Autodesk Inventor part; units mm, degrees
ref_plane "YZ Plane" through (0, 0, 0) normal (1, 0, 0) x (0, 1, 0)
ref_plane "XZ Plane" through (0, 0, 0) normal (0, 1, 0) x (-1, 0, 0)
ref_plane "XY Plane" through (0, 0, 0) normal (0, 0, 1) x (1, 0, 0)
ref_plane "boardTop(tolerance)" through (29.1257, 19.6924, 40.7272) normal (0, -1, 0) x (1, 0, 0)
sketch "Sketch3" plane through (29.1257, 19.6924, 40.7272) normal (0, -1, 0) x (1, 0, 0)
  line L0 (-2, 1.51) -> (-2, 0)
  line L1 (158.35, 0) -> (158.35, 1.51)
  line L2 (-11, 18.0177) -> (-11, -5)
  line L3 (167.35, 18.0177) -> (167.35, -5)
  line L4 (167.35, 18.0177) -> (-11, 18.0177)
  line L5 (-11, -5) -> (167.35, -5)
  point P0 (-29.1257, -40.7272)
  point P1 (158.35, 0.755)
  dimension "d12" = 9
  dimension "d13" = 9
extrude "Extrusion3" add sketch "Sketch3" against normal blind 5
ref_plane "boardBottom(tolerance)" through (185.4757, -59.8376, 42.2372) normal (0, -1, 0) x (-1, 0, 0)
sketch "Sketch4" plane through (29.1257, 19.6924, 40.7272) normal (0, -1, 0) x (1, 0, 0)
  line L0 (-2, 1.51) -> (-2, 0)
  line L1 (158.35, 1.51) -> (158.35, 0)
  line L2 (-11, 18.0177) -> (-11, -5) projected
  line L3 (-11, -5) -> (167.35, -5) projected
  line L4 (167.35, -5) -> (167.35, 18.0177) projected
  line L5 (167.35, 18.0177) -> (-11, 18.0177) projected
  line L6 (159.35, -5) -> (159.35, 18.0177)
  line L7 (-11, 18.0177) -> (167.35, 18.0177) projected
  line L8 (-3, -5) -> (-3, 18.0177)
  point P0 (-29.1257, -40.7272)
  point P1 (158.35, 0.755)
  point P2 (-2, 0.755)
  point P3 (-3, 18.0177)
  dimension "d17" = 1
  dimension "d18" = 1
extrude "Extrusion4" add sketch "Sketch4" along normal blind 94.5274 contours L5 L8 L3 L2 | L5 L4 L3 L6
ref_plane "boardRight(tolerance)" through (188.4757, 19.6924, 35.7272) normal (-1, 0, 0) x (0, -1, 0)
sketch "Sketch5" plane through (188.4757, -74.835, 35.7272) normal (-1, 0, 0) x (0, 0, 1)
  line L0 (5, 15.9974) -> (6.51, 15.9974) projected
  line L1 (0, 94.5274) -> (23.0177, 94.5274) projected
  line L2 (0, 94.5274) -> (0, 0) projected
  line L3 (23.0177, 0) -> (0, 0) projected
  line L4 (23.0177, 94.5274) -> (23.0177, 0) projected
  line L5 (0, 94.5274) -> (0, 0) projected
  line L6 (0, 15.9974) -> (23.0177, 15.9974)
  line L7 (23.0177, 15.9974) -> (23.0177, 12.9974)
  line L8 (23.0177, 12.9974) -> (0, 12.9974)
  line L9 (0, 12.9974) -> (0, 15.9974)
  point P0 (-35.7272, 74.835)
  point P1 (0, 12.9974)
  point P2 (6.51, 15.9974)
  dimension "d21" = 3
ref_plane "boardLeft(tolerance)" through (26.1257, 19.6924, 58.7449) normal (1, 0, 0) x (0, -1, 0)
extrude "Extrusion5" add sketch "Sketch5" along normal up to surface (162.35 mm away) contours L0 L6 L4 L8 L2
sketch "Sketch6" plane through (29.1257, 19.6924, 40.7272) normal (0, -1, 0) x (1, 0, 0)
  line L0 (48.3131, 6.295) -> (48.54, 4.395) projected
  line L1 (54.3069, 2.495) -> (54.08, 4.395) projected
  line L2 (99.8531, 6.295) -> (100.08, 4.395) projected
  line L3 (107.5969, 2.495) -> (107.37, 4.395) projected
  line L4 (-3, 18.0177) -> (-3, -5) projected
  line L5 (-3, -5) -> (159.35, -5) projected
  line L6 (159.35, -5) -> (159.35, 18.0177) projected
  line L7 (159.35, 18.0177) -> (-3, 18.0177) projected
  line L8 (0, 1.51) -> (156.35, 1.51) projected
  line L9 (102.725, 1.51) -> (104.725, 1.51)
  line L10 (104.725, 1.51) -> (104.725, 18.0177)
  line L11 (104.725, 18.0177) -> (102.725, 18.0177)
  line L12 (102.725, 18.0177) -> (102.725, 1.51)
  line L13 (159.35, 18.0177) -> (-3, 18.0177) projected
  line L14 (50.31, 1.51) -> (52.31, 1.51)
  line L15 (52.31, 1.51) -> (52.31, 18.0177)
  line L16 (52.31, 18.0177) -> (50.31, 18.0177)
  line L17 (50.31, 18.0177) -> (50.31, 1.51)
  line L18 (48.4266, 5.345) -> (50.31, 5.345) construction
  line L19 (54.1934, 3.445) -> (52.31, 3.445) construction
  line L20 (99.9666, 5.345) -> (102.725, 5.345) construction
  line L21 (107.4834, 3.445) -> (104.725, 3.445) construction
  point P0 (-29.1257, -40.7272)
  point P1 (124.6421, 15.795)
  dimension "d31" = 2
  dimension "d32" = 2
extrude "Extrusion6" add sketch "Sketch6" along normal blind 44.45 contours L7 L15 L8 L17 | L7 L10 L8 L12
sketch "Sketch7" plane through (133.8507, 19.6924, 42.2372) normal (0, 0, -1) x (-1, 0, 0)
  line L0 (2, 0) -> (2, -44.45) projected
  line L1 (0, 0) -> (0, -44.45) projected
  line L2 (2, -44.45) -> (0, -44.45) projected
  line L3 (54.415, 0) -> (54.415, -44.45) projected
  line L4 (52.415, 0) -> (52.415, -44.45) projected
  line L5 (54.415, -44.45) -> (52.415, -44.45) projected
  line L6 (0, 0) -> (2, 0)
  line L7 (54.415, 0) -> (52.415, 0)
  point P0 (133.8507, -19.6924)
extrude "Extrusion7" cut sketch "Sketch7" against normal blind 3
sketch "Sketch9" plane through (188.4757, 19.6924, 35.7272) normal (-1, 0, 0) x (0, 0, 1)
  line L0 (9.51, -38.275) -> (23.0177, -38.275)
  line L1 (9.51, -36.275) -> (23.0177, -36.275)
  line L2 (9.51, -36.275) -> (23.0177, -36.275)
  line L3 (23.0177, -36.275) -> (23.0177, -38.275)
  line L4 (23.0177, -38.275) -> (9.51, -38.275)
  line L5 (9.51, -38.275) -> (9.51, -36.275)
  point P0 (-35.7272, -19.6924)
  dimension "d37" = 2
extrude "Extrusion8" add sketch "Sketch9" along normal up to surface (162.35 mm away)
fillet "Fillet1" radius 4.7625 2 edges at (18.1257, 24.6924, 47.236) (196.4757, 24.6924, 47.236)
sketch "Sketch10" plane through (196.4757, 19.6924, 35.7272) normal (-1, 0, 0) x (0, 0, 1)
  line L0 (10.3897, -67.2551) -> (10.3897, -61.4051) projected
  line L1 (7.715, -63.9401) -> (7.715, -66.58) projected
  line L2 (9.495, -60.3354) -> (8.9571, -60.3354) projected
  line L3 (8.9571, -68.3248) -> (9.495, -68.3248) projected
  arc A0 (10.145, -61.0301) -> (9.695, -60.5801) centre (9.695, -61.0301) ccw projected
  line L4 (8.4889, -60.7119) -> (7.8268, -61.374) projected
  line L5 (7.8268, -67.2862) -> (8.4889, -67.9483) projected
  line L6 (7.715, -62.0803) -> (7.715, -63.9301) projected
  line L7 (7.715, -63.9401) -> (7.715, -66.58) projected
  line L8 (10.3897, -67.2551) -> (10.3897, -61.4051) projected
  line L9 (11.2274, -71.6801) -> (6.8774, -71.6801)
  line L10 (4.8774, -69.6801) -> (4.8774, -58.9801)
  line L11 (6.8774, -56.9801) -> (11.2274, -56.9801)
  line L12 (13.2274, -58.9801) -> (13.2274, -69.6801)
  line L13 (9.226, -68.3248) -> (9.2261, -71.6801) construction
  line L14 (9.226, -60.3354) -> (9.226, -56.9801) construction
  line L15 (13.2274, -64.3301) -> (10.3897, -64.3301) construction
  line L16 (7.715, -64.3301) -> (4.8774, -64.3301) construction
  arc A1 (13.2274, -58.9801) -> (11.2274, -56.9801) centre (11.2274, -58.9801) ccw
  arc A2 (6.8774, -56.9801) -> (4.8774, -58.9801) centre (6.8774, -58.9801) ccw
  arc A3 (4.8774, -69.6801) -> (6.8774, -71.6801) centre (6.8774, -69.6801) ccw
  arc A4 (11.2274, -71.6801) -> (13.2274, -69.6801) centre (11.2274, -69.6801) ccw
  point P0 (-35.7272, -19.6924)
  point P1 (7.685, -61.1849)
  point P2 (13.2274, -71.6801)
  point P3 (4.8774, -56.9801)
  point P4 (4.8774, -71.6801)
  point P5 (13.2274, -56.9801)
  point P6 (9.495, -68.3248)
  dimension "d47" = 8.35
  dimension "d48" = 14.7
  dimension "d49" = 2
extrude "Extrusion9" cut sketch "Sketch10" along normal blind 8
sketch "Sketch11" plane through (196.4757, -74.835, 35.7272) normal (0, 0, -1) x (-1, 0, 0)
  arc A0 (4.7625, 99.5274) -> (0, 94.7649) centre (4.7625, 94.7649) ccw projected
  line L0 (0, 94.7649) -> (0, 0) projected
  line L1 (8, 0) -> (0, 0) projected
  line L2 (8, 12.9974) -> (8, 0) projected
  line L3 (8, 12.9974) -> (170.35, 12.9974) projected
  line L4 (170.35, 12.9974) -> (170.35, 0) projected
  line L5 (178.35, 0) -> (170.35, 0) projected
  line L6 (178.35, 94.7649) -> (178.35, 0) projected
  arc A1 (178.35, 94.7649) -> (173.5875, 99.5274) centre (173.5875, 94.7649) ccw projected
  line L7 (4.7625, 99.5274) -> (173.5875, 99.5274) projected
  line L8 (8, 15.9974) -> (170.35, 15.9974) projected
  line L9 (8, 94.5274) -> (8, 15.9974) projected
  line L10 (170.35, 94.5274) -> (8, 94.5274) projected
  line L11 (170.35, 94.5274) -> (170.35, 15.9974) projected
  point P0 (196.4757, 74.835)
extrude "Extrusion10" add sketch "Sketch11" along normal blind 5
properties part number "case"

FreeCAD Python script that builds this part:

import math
import FreeCAD as App
import Part
import Sketcher

V = App.Vector
Q = App.Units.Quantity


def edges_at(feature, points):
    """Names of the edges that pass closest to the given points."""
    edges = feature.Shape.Edges
    near = lambda p: min(range(len(edges)), key=lambda i: edges[i].distToShape(Part.Vertex(*p))[0])
    return sorted({f"Edge{near(p) + 1}" for p in points})

doc = App.newDocument("Part")
body = doc.addObject("PartDesign::Body", "Body")

sketch1 = body.newObject("Sketcher::SketchObject", "Sketch")
sketch1.AttachmentSupport = (doc.getObject("XZ_Plane"), [""])
sketch1.MapMode = "FlatFace"
sketch1.AttachmentOffset = App.Placement(V(0, 0, -19.6924), App.Rotation())
sketch1.addGeometry([
    Part.LineSegment(V(196, 59, 0), V(18, 59, 0)),
    Part.LineSegment(V(18, 59, 0), V(18, 36, 0)),
    Part.LineSegment(V(18, 36, 0), V(196, 36, 0)),
    Part.LineSegment(V(196, 36, 0), V(196, 59, 0)),
], False)
sketch1.addConstraint([
    Sketcher.Constraint("Coincident", 0, 2, 1, 1),
    Sketcher.Constraint("Coincident", 1, 2, 2, 1),
    Sketcher.Constraint("Coincident", 2, 2, 3, 1),
    Sketcher.Constraint("Coincident", 3, 2, 0, 1),
    Sketcher.Constraint("Horizontal", 0),
    Sketcher.Constraint("Vertical", 1),
    Sketcher.Constraint("Horizontal", 2),
    Sketcher.Constraint("Vertical", 3),
    Sketcher.Constraint("DistanceX", 0, 2, 0, 1, Q("178.35 mm")),
    Sketcher.Constraint("DistanceY", 1, 2, 1, 1, Q("23.0177 mm")),
    Sketcher.Constraint("DistanceY", -1, 1, 0, 2, Q("58.745 mm")),
    Sketcher.Constraint("DistanceX", -1, 1, 0, 2, Q("18.1257 mm")),
])
pad1 = body.newObject("PartDesign::Pad", "Pad")
pad1.Profile = sketch1
pad1.Length = 5
pad1.Reversed = True

sketch2 = body.newObject("Sketcher::SketchObject", "Sketch001")
sketch2.AttachmentSupport = (doc.getObject("XZ_Plane"), [""])
sketch2.MapMode = "FlatFace"
sketch2.AttachmentOffset = App.Placement(V(0, 0, -19.6924), App.Rotation())
sketch2.addGeometry([
    Part.LineSegment(V(26, 59, 0), V(18, 59, 0)),
    Part.LineSegment(V(18, 59, 0), V(18, 36, 0)),
    Part.LineSegment(V(18, 36, 0), V(26, 36, 0)),
    Part.LineSegment(V(26, 36, 0), V(26, 59, 0)),
    Part.LineSegment(V(196, 59, 0), V(188, 59, 0)),
    Part.LineSegment(V(188, 59, 0), V(188, 36, 0)),
    Part.LineSegment(V(188, 36, 0), V(196, 36, 0)),
    Part.LineSegment(V(196, 36, 0), V(196, 59, 0)),
], False)
sketch2.addConstraint([
    Sketcher.Constraint("Coincident", 0, 2, 1, 1),
    Sketcher.Constraint("Coincident", 1, 2, 2, 1),
    Sketcher.Constraint("Coincident", 2, 2, 3, 1),
    Sketcher.Constraint("Coincident", 3, 2, 0, 1),
    Sketcher.Constraint("Coincident", 4, 2, 5, 1),
    Sketcher.Constraint("Coincident", 5, 2, 6, 1),
    Sketcher.Constraint("Coincident", 6, 2, 7, 1),
    Sketcher.Constraint("Coincident", 7, 2, 4, 1),
    Sketcher.Constraint("Horizontal", 0),
    Sketcher.Constraint("Vertical", 1),
    Sketcher.Constraint("Horizontal", 2),
    Sketcher.Constraint("Vertical", 3),
    Sketcher.Constraint("Horizontal", 4),
    Sketcher.Constraint("Vertical", 5),
    Sketcher.Constraint("Horizontal", 6),
    Sketcher.Constraint("Vertical", 7),
    Sketcher.Constraint("Horizontal", 3, 2, 4, 2),
    Sketcher.Constraint("Horizontal", 2, 2, 5, 2),
    Sketcher.Constraint("Equal", 2, 4),
    Sketcher.Constraint("DistanceX", 0, 2, 0, 1, Q("8 mm")),
    Sketcher.Constraint("DistanceX", 3, 2, 4, 2, Q("162.35 mm")),
    Sketcher.Constraint("DistanceY", 1, 2, 1, 1, Q("23.0177 mm")),
    Sketcher.Constraint("DistanceY", -1, 1, 0, 2, Q("58.745 mm")),
    Sketcher.Constraint("DistanceX", -1, 1, 0, 2, Q("18.1257 mm")),
])
pad2 = body.newObject("PartDesign::Pad", "Pad001")
pad2.Profile = sketch2
pad2.Length = 94.5274

sketch3 = body.newObject("Sketcher::SketchObject", "Sketch002")
sketch3.AttachmentSupport = (doc.getObject("YZ_Plane"), [""])
sketch3.MapMode = "FlatFace"
sketch3.AttachmentOffset = App.Placement(V(0, 0, 188.4757), App.Rotation())
sketch3.addGeometry([
    Part.LineSegment(V(-58.8, 58.7, 0), V(-58.8, 35.7, 0)),
    Part.LineSegment(V(-58.8, 35.7, 0), V(-61.8, 35.7, 0)),
    Part.LineSegment(V(-61.8, 35.7, 0), V(-61.8, 58.7, 0)),
    Part.LineSegment(V(-61.8, 58.7, 0), V(-58.8, 58.7, 0)),
], False)
sketch3.addConstraint([
    Sketcher.Constraint("Coincident", 0, 2, 1, 1),
    Sketcher.Constraint("Coincident", 1, 2, 2, 1),
    Sketcher.Constraint("Coincident", 2, 2, 3, 1),
    Sketcher.Constraint("Coincident", 3, 2, 0, 1),
    Sketcher.Constraint("Vertical", 0),
    Sketcher.Constraint("Horizontal", 1),
    Sketcher.Constraint("Vertical", 2),
    Sketcher.Constraint("Horizontal", 3),
    Sketcher.Constraint("DistanceX", 1, 2, 1, 1, Q("3 mm")),
    Sketcher.Constraint("DistanceY", 0, 2, 0, 1, Q("23.0177 mm")),
    Sketcher.Constraint("DistanceY", -1, 1, 2, 2, Q("58.745 mm")),
    Sketcher.Constraint("DistanceX", 0, 2, -1, 1, Q("58.8376 mm")),
])
pad3 = body.newObject("PartDesign::Pad", "Pad002")
pad3.Profile = sketch3
pad3.Length = 162.35
pad3.Reversed = True

sketch4 = body.newObject("Sketcher::SketchObject", "Sketch003")
sketch4.AttachmentSupport = (doc.getObject("XZ_Plane"), [""])
sketch4.MapMode = "FlatFace"
sketch4.AttachmentOffset = App.Placement(V(0, 0, -19.6924), App.Rotation())
sketch4.addGeometry([
    Part.LineSegment(V(81.4, 58.7, 0), V(79.4, 58.7, 0)),
    Part.LineSegment(V(79.4, 58.7, 0), V(79.4, 42.2, 0)),
    Part.LineSegment(V(79.4, 42.2, 0), V(81.4, 42.2, 0)),
    Part.LineSegment(V(81.4, 42.2, 0), V(81.4, 58.7, 0)),
    Part.LineSegment(V(133.9, 58.7, 0), V(131.9, 58.7, 0)),
    Part.LineSegment(V(131.9, 58.7, 0), V(131.9, 42.2, 0)),
    Part.LineSegment(V(131.9, 42.2, 0), V(133.9, 42.2, 0)),
    Part.LineSegment(V(133.9, 42.2, 0), V(133.9, 58.7, 0)),
], False)
sketch4.addConstraint([
    Sketcher.Constraint("Coincident", 0, 2, 1, 1),
    Sketcher.Constraint("Coincident", 1, 2, 2, 1),
    Sketcher.Constraint("Coincident", 2, 2, 3, 1),
    Sketcher.Constraint("Coincident", 3, 2, 0, 1),
    Sketcher.Constraint("Coincident", 4, 2, 5, 1),
    Sketcher.Constraint("Coincident", 5, 2, 6, 1),
    Sketcher.Constraint("Coincident", 6, 2, 7, 1),
    Sketcher.Constraint("Coincident", 7, 2, 4, 1),
    Sketcher.Constraint("Horizontal", 0),
    Sketcher.Constraint("Vertical", 1),
    Sketcher.Constraint("Horizontal", 2),
    Sketcher.Constraint("Vertical", 3),
    Sketcher.Constraint("Horizontal", 4),
    Sketcher.Constraint("Vertical", 5),
    Sketcher.Constraint("Horizontal", 6),
    Sketcher.Constraint("Vertical", 7),
    Sketcher.Constraint("Horizontal", 3, 2, 4, 2),
    Sketcher.Constraint("Horizontal", 2, 2, 5, 2),
    Sketcher.Constraint("Equal", 2, 4),
    Sketcher.Constraint("DistanceX", 0, 2, 0, 1, Q("2 mm")),
    Sketcher.Constraint("DistanceY", 1, 2, 1, 1, Q("16.5077 mm")),
    Sketcher.Constraint("DistanceY", -1, 1, 0, 2, Q("58.745 mm")),
    Sketcher.Constraint("DistanceX", 3, 2, 4, 2, Q("50.415 mm")),
    Sketcher.Constraint("DistanceX", -1, 1, 0, 2, Q("79.4357 mm")),
])
pad4 = body.newObject("PartDesign::Pad", "Pad003")
pad4.Profile = sketch4
pad4.Length = 44.45

sketch5 = body.newObject("Sketcher::SketchObject", "Sketch004")
sketch5.AttachmentSupport = (doc.getObject("XY_Plane"), [""])
sketch5.MapMode = "FlatFace"
sketch5.AttachmentOffset = App.Placement(V(0, 0, 42.2372), App.Rotation())
sketch5.addGeometry([
    Part.LineSegment(V(131.9, -24.8, 0), V(131.9, 19.7, 0)),
    Part.LineSegment(V(131.9, 19.7, 0), V(133.9, 19.7, 0)),
    Part.LineSegment(V(133.9, 19.7, 0), V(133.9, -24.8, 0)),
    Part.LineSegment(V(133.9, -24.8, 0), V(131.9, -24.8, 0)),
    Part.LineSegment(V(79.4, -24.8, 0), V(79.4, 19.7, 0)),
    Part.LineSegment(V(79.4, 19.7, 0), V(81.4, 19.7, 0)),
    Part.LineSegment(V(81.4, 19.7, 0), V(81.4, -24.8, 0)),
    Part.LineSegment(V(81.4, -24.8, 0), V(79.4, -24.8, 0)),
], False)
sketch5.addConstraint([
    Sketcher.Constraint("Coincident", 0, 2, 1, 1),
    Sketcher.Constraint("Coincident", 1, 2, 2, 1),
    Sketcher.Constraint("Coincident", 2, 2, 3, 1),
    Sketcher.Constraint("Coincident", 3, 2, 0, 1),
    Sketcher.Constraint("Coincident", 4, 2, 5, 1),
    Sketcher.Constraint("Coincident", 5, 2, 6, 1),
    Sketcher.Constraint("Coincident", 6, 2, 7, 1),
    Sketcher.Constraint("Coincident", 7, 2, 4, 1),
    Sketcher.Constraint("Vertical", 0),
    Sketcher.Constraint("Horizontal", 1),
    Sketcher.Constraint("Vertical", 2),
    Sketcher.Constraint("Horizontal", 3),
    Sketcher.Constraint("Vertical", 4),
    Sketcher.Constraint("Horizontal", 5),
    Sketcher.Constraint("Vertical", 6),
    Sketcher.Constraint("Horizontal", 7),
    Sketcher.Constraint("Horizontal", 1, 2, 4, 2),
    Sketcher.Constraint("Horizontal", 3, 2, 6, 2),
    Sketcher.Constraint("Equal", 3, 5),
    Sketcher.Constraint("DistanceX", 1, 1, 1, 2, Q("2 mm")),
    Sketcher.Constraint("DistanceY", 0, 1, 0, 2, Q("44.45 mm")),
    Sketcher.Constraint("DistanceX", 4, 2, 0, 2, Q("52.415 mm")),
    Sketcher.Constraint("DistanceX", -1, 1, 0, 2, Q("131.8507 mm")),
    Sketcher.Constraint("DistanceY", -1, 1, 0, 2, Q("19.6924 mm")),
])
pocket1 = body.newObject("PartDesign::Pocket", "Pocket")
pocket1.Profile = sketch5
pocket1.Length = 3
pocket1.Reversed = True

sketch6 = body.newObject("Sketcher::SketchObject", "Sketch005")
sketch6.AttachmentSupport = (doc.getObject("YZ_Plane"), [""])
sketch6.MapMode = "FlatFace"
sketch6.AttachmentOffset = App.Placement(V(0, 0, 188.4757), App.Rotation())
sketch6.addGeometry([
    Part.LineSegment(V(-16.6, 45.2, 0), V(-18.6, 45.2, 0)),
    Part.LineSegment(V(-18.6, 45.2, 0), V(-18.6, 58.7, 0)),
    Part.LineSegment(V(-18.6, 58.7, 0), V(-16.6, 58.7, 0)),
    Part.LineSegment(V(-16.6, 58.7, 0), V(-16.6, 45.2, 0)),
], False)
sketch6.addConstraint([
    Sketcher.Constraint("Coincident", 0, 2, 1, 1),
    Sketcher.Constraint("Coincident", 1, 2, 2, 1),
    Sketcher.Constraint("Coincident", 2, 2, 3, 1),
    Sketcher.Constraint("Coincident", 3, 2, 0, 1),
    Sketcher.Constraint("Horizontal", 0),
    Sketcher.Constraint("Vertical", 1),
    Sketcher.Constraint("Horizontal", 2),
    Sketcher.Constraint("Vertical", 3),
    Sketcher.Constraint("DistanceX", 0, 2, 0, 1, Q("2 mm")),
    Sketcher.Constraint("DistanceY", 1, 1, 1, 2, Q("13.5077 mm")),
    Sketcher.Constraint("DistanceY", -1, 1, 1, 2, Q("58.745 mm")),
    Sketcher.Constraint("DistanceX", 0, 2, -1, 1, Q("18.5826 mm")),
])
pad5 = body.newObject("PartDesign::Pad", "Pad004")
pad5.Profile = sketch6
pad5.Length = 162.35
pad5.Reversed = True
doc.recompute()

fillet = body.newObject("PartDesign::Fillet", "Fillet")
fillet.Base = (pad5, edges_at(pad5, [(18.126, 24.692, 47.236), (196.476, 24.692, 47.236)]))
fillet.Radius = 4.7625

sketch7 = body.newObject("Sketcher::SketchObject", "Sketch006")
sketch7.AttachmentSupport = (doc.getObject("YZ_Plane"), [""])
sketch7.MapMode = "FlatFace"
sketch7.AttachmentOffset = App.Placement(V(0, 0, 196.4757), App.Rotation())
sketch7.addGeometry([
    Part.LineSegment(V(-52, 42.6, 0), V(-52, 47, 0)),
    Part.ArcOfCircle(Part.Circle(V(-50, 47, 0), V(0, 0, 1), 2), math.radians(90), math.radians(180)),
    Part.LineSegment(V(-50, 49, 0), V(-39.3, 49, 0)),
    Part.ArcOfCircle(Part.Circle(V(-39.3, 47, 0), V(0, 0, 1), 2), math.radians(0), math.radians(90)),
    Part.LineSegment(V(-37.3, 47, 0), V(-37.3, 42.6, 0)),
    Part.ArcOfCircle(Part.Circle(V(-39.3, 42.6, 0), V(0, 0, 1), 2), math.radians(-90), math.radians(0)),
    Part.LineSegment(V(-39.3, 40.6, 0), V(-50, 40.6, 0)),
    Part.ArcOfCircle(Part.Circle(V(-50, 42.6, 0), V(0, 0, 1), 2), math.radians(180), math.radians(270)),
], False)
sketch7.addConstraint([
    Sketcher.Constraint("Tangent", 0, 2, 1, 2),
    Sketcher.Constraint("Tangent", 1, 1, 2, 1),
    Sketcher.Constraint("Tangent", 2, 2, 3, 2),
    Sketcher.Constraint("Tangent", 3, 1, 4, 1),
    Sketcher.Constraint("Tangent", 4, 2, 5, 2),
    Sketcher.Constraint("Tangent", 5, 1, 6, 1),
    Sketcher.Constraint("Tangent", 6, 2, 7, 2),
    Sketcher.Constraint("Tangent", 7, 1, 0, 1),
    Sketcher.Constraint("Vertical", 0),
    Sketcher.Constraint("Horizontal", 2),
    Sketcher.Constraint("Vertical", 4),
    Sketcher.Constraint("Horizontal", 6),
    Sketcher.Constraint("Equal", 1, 3),
    Sketcher.Constraint("Equal", 3, 5),
    Sketcher.Constraint("Equal", 5, 7),
    Sketcher.Constraint("Radius", 1, Q("2 mm")),
    Sketcher.Constraint("DistanceY", 5, 1, 2, 2, Q("8.35 mm")),
    Sketcher.Constraint("DistanceX", 2, 1, 2, 2, Q("10.7 mm")),
    Sketcher.Constraint("DistanceX", 1, 3, -1, 1, Q("49.9877 mm")),
    Sketcher.Constraint("DistanceY", -1, 1, 1, 3, Q("46.9546 mm")),
])
pocket2 = body.newObject("PartDesign::Pocket", "Pocket001")
pocket2.Profile = sketch7
pocket2.Length = 8

sketch8 = body.newObject("Sketcher::SketchObject", "Sketch007")
sketch8.AttachmentSupport = (doc.getObject("XY_Plane"), [""])
sketch8.MapMode = "FlatFace"
sketch8.AttachmentOffset = App.Placement(V(0, 0, 35.7272), App.Rotation())
sketch8.addGeometry([
    Part.LineSegment(V(22.9, 24.7, 0), V(191.7, 24.7, 0)),
    Part.ArcOfCircle(Part.Circle(V(191.7, 19.9, 0), V(0, 0, 1), 4.8), math.radians(0), math.radians(90)),
    Part.LineSegment(V(196.5, 19.9, 0), V(196.5, -74.8, 0)),
    Part.LineSegment(V(196.5, -74.8, 0), V(188.5, -74.8, 0)),
    Part.LineSegment(V(188.5, -74.8, 0), V(188.5, -61.8, 0)),
    Part.LineSegment(V(188.5, -61.8, 0), V(26.1, -61.8, 0)),
    Part.LineSegment(V(26.1, -61.8, 0), V(26.1, -74.8, 0)),
    Part.LineSegment(V(26.1, -74.8, 0), V(18.1, -74.8, 0)),
    Part.LineSegment(V(18.1, -74.8, 0), V(18.1, 19.9, 0)),
    Part.ArcOfCircle(Part.Circle(V(22.9, 19.9, 0), V(0, 0, 1), 4.8), math.radians(90), math.radians(180)),
    Part.LineSegment(V(26.1, -58.8, 0), V(188.5, -58.8, 0)),
    Part.LineSegment(V(188.5, -58.8, 0), V(188.5, 19.7, 0)),
    Part.LineSegment(V(188.5, 19.7, 0), V(26.1, 19.7, 0)),
    Part.LineSegment(V(26.1, 19.7, 0), V(26.1, -58.8, 0)),
], False)
sketch8.addConstraint([
    Sketcher.Constraint("Tangent", 0, 2, 1, 2),
    Sketcher.Constraint("Tangent", 1, 1, 2, 1),
    Sketcher.Constraint("Coincident", 2, 2, 3, 1),
    Sketcher.Constraint("Coincident", 3, 2, 4, 1),
    Sketcher.Constraint("Coincident", 4, 2, 5, 1),
    Sketcher.Constraint("Coincident", 5, 2, 6, 1),
    Sketcher.Constraint("Coincident", 6, 2, 7, 1),
    Sketcher.Constraint("Coincident", 7, 2, 8, 1),
    Sketcher.Constraint("Tangent", 8, 2, 9, 2),
    Sketcher.Constraint("Tangent", 9, 1, 0, 1),
    Sketcher.Constraint("Coincident", 10, 2, 11, 1),
    Sketcher.Constraint("Coincident", 11, 2, 12, 1),
    Sketcher.Constraint("Coincident", 12, 2, 13, 1),
    Sketcher.Constraint("Coincident", 13, 2, 10, 1),
    Sketcher.Constraint("Horizontal", 0),
    Sketcher.Constraint("Vertical", 2),
    Sketcher.Constraint("Horizontal", 3),
    Sketcher.Constraint("Vertical", 4),
    Sketcher.Constraint("Horizontal", 5),
    Sketcher.Constraint("Vertical", 6),
    Sketcher.Constraint("Horizontal", 7),
    Sketcher.Constraint("Vertical", 8),
    Sketcher.Constraint("Horizontal", 10),
    Sketcher.Constraint("Vertical", 11),
    Sketcher.Constraint("Horizontal", 12),
    Sketcher.Constraint("Vertical", 13),
    Sketcher.Constraint("Equal", 1, 9),
    Sketcher.Constraint("Horizontal", 3, 2, 6, 2),
    Sketcher.Constraint("Vertical", 4, 2, 10, 2),
    Sketcher.Constraint("Vertical", 6, 2, 12, 2),
    Sketcher.Constraint("Equal", 3, 7),
    Sketcher.Constraint("DistanceX", 3, 2, 3, 1, Q("8 mm")),
    Sketcher.Constraint("DistanceY", 4, 2, 10, 2, Q("3 mm")),
    Sketcher.Constraint("DistanceY", 11, 2, 0, 2, Q("5 mm")),
    Sketcher.Constraint("DistanceX", 5, 2, 5, 1, Q("162.35 mm")),
    Sketcher.Constraint("DistanceY", 11, 1, 11, 2, Q("78.53 mm")),
    Sketcher.Constraint("Radius", 1, Q("4.7625 mm")),
    Sketcher.Constraint("DistanceY", 2, 2, 2, 1, Q("94.765 mm")),
    Sketcher.Constraint("DistanceY", -1, 1, 1, 3, Q("19.93 mm")),
    Sketcher.Constraint("DistanceX", -1, 1, 1, 3, Q("191.7132 mm")),
])
pad6 = body.newObject("PartDesign::Pad", "Pad005")
pad6.Profile = sketch8
pad6.Length = 5
pad6.Reversed = True

doc.recompute()
